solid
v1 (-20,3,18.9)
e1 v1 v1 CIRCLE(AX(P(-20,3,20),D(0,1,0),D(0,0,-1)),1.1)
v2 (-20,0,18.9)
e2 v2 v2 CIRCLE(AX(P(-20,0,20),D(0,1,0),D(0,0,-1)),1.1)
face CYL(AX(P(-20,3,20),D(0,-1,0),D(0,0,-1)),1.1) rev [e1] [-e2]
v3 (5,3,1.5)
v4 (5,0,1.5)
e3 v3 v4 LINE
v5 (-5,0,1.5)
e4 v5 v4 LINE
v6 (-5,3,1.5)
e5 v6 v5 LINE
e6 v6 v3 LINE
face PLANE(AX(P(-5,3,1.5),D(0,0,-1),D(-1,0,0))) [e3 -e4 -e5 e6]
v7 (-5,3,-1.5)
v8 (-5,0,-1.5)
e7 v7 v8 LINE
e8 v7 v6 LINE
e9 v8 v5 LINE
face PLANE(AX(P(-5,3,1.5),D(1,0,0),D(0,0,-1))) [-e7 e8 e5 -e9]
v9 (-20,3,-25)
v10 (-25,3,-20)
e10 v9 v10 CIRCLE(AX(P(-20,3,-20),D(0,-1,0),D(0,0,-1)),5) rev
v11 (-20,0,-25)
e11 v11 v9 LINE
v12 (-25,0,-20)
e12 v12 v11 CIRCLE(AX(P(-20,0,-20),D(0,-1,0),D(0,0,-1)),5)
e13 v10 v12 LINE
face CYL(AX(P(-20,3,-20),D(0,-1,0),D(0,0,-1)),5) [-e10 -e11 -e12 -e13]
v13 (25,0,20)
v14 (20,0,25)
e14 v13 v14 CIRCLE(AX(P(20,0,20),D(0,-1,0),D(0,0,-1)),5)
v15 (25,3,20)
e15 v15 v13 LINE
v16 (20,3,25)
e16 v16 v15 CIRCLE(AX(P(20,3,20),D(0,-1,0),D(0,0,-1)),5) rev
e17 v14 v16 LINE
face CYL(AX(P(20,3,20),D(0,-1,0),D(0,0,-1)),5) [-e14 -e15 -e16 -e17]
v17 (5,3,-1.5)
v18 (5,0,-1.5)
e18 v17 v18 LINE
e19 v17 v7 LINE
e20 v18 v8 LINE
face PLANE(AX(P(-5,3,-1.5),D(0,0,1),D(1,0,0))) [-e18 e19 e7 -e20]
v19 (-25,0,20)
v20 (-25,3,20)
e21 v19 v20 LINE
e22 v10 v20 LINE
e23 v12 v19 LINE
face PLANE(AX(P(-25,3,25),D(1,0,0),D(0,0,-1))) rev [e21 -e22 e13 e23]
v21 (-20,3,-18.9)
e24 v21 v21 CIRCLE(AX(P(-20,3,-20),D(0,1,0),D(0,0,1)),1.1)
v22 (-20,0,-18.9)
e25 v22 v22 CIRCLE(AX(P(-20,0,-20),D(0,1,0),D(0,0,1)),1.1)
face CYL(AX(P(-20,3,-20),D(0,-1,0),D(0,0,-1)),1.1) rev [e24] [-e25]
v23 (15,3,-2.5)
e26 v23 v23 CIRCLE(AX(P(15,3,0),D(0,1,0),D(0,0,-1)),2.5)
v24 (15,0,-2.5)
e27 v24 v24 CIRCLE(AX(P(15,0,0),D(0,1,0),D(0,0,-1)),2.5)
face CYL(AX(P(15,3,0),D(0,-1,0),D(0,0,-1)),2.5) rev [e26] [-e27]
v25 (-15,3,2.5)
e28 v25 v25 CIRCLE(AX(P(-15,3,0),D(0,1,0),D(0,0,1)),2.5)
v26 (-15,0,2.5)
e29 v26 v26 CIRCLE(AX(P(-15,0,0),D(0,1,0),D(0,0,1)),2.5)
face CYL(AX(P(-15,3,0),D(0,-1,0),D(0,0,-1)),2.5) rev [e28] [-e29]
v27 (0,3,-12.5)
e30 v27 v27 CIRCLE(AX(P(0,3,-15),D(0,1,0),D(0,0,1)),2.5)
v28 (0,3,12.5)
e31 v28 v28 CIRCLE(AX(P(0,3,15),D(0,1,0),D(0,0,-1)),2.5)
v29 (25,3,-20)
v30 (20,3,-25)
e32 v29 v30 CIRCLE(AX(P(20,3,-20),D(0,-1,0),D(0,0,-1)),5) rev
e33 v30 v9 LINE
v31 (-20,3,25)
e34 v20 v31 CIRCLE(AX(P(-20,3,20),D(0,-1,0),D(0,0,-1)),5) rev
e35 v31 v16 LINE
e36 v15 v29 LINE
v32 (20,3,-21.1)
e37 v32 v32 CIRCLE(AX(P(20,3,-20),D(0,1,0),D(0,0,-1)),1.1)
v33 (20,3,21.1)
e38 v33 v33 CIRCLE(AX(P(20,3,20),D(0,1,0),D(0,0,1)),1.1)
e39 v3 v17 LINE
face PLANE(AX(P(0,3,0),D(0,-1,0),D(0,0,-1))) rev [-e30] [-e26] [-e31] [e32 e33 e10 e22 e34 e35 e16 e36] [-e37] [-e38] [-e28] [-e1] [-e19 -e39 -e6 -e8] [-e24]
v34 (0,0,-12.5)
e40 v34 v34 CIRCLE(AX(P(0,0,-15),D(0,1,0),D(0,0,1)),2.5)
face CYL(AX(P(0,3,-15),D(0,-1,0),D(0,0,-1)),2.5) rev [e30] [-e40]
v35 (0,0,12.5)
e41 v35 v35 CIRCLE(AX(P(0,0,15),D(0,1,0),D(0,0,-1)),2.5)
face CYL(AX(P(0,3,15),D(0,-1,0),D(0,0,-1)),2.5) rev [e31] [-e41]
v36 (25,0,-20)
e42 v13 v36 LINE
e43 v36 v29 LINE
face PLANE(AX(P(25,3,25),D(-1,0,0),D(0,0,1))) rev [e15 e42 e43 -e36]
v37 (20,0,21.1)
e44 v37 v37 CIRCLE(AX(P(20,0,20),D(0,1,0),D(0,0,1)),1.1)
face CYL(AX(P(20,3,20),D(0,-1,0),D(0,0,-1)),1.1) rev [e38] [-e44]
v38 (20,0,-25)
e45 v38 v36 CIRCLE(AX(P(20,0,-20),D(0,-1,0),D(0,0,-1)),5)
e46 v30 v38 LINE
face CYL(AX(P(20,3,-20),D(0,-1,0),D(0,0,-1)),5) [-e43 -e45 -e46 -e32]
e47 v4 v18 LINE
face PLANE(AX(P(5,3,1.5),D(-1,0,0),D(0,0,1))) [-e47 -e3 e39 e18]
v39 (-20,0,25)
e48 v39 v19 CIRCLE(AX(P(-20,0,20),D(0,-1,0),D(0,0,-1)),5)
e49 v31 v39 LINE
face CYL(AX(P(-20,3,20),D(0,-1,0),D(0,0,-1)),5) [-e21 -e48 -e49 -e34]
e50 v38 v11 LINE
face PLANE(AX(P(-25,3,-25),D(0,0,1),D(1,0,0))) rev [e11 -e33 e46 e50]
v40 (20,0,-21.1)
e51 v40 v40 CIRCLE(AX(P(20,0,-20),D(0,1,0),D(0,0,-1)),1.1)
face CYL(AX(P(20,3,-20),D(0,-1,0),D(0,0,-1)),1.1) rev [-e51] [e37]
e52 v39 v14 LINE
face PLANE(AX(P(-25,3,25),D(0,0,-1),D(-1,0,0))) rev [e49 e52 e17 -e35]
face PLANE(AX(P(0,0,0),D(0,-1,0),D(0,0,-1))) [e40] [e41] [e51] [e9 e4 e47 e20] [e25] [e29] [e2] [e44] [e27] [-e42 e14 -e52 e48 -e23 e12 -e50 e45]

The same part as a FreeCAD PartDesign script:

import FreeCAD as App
import Part
import Sketcher


def edges_at(feature, points):
    """Names of the edges that pass closest to the given points."""
    edges = feature.Shape.Edges
    near = lambda p: min(range(len(edges)), key=lambda i: edges[i].distToShape(Part.Vertex(*p))[0])
    return sorted({f"Edge{near(p) + 1}" for p in points})


def add_polygon(sketch, points):
    """Adds a closed chain of lines whose ends are joined by coincident constraints."""
    first, n = sketch.GeometryCount, len(points)
    for a, b in zip(points, points[1:] + points[:1]):
        sketch.addGeometry(Part.LineSegment(App.Vector(*a, 0), App.Vector(*b, 0)), False)
    for i in range(n):
        sketch.addConstraint(Sketcher.Constraint("Coincident", first + i, 2, first + (i + 1) % n, 1))

doc = App.newDocument("Part")
body = doc.addObject("PartDesign::Body", "Body")

# Sketch on XZ plane
sketch1 = body.newObject("Sketcher::SketchObject", "Sketch")
sketch1.AttachmentSupport = (doc.getObject("XZ_Plane"), [""])
sketch1.MapMode = "FlatFace"
add_polygon(sketch1, [(-25, -25), (-25, 25), (25, 25), (25, -25)])  # lines 0-3
sketch1.addGeometry(Part.Circle(App.Vector(-20, 20, 0), App.Vector(0, 0, 1), 1.1), False)  # 4
sketch1.addGeometry(Part.Circle(App.Vector(0, 15, 0), App.Vector(0, 0, 1), 2.5), False)  # 5
sketch1.addGeometry(Part.Circle(App.Vector(20, 20, 0), App.Vector(0, 0, 1), 1.1), False)  # 6
sketch1.addGeometry(Part.Circle(App.Vector(-15, 0, 0), App.Vector(0, 0, 1), 2.5), False)  # 7
sketch1.addGeometry(Part.Circle(App.Vector(-20, -20, 0), App.Vector(0, 0, 1), 1.1), False)  # 8
add_polygon(sketch1, [(5, 1.5), (-5, 1.5), (-5, -1.5), (5, -1.5)])  # lines 9-12
sketch1.addGeometry(Part.Circle(App.Vector(15, 0, 0), App.Vector(0, 0, 1), 2.5), False)  # 13
sketch1.addGeometry(Part.Circle(App.Vector(0, -15, 0), App.Vector(0, 0, 1), 2.5), False)  # 14
sketch1.addGeometry(Part.Circle(App.Vector(20, -20, 0), App.Vector(0, 0, 1), 1.1), False)  # 15
sketch1.addConstraint(Sketcher.Constraint("Vertical", 0))
sketch1.addConstraint(Sketcher.Constraint("Horizontal", 1))
sketch1.addConstraint(Sketcher.Constraint("Vertical", 2))
sketch1.addConstraint(Sketcher.Constraint("Horizontal", 3))
sketch1.addConstraint(Sketcher.Constraint("Horizontal", 9))
sketch1.addConstraint(Sketcher.Constraint("Vertical", 10))
sketch1.addConstraint(Sketcher.Constraint("Horizontal", 11))
sketch1.addConstraint(Sketcher.Constraint("Vertical", 12))
sketch1.addConstraint(Sketcher.Constraint("Equal", 4, 6))
sketch1.addConstraint(Sketcher.Constraint("Equal", 5, 7))
sketch1.addConstraint(Sketcher.Constraint("Equal", 6, 8))
sketch1.addConstraint(Sketcher.Constraint("Equal", 7, 13))
sketch1.addConstraint(Sketcher.Constraint("Equal", 13, 14))
sketch1.addConstraint(Sketcher.Constraint("Equal", 8, 15))
sketch1.addConstraint(Sketcher.Constraint("Symmetric", 6, 3, 8, 3, -1, 1))
sketch1.addConstraint(Sketcher.Constraint("Symmetric", 7, 3, 13, 3, -1, 1))
sketch1.addConstraint(Sketcher.Constraint("Symmetric", 5, 3, 14, 3, -1, 1))
sketch1.addConstraint(Sketcher.Constraint("Symmetric", 4, 3, 15, 3, -1, 1))
sketch1.addConstraint(Sketcher.Constraint("Symmetric", 0, 2, 2, 2, -1, 1))
sketch1.addConstraint(Sketcher.Constraint("Symmetric", 9, 2, 11, 2, -1, 1))
sketch1.addConstraint(Sketcher.Constraint("Symmetric", 4, 3, 6, 3, -2))
sketch1.addConstraint(Sketcher.Constraint("PointOnObject", 5, 3, -2))
sketch1.addConstraint(Sketcher.Constraint("PointOnObject", 7, 3, -1))
sketch1.addConstraint(Sketcher.Constraint("Equal", 3, 0))
sketch1.addConstraint(Sketcher.Constraint("Diameter", 5, 5.0))
sketch1.addConstraint(Sketcher.Constraint("Diameter", 4, 2.2))
sketch1.addConstraint(Sketcher.Constraint("DistanceX", 1, 1, 1, 2, 50.0))
sketch1.addConstraint(Sketcher.Constraint("DistanceX", 9, 2, 9, 1, 10.0))
sketch1.addConstraint(Sketcher.Constraint("DistanceY", 10, 2, 10, 1, 3.0))
sketch1.addConstraint(Sketcher.Constraint("DistanceX", 4, 3, -1, 1, 20.0))
sketch1.addConstraint(Sketcher.Constraint("DistanceY", -1, 1, 4, 3, 20.0))
sketch1.addConstraint(Sketcher.Constraint("DistanceY", -1, 1, 5, 3, 15.0))
sketch1.addConstraint(Sketcher.Constraint("DistanceX", 7, 3, -1, 1, 15.0))
pad1 = body.newObject("PartDesign::Pad", "Pad")
pad1.Profile = sketch1
pad1.Length = 3
pad1.Reversed = True
doc.recompute()

fillet = body.newObject("PartDesign::Fillet", "Fillet")
fillet.Base = (pad1, edges_at(pad1, [
    (25, 1.5, 25),
    (-25, 1.5, 25),
    (-25, 1.5, -25),
    (25, 1.5, -25),
]))
fillet.Radius = 5

doc.recompute()
